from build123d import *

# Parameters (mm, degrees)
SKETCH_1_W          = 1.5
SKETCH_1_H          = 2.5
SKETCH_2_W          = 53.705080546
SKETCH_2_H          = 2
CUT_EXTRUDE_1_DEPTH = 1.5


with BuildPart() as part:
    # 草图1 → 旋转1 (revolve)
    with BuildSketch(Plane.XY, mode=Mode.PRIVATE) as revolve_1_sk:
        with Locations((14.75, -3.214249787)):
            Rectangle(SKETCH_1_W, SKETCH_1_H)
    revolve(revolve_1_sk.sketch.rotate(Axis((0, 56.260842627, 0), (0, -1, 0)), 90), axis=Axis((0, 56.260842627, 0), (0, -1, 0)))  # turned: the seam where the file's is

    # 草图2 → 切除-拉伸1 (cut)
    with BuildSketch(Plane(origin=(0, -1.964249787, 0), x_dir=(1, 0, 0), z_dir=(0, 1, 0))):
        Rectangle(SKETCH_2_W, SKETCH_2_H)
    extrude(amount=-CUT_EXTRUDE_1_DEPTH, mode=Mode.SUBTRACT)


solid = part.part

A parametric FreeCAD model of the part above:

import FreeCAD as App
import Part
import Sketcher
Q = App.Units.Quantity


def add_polygon(sketch, points):
    """Adds a closed chain of lines whose ends are joined by coincident constraints."""
    first, n = sketch.GeometryCount, len(points)
    for a, b in zip(points, points[1:] + points[:1]):
        sketch.addGeometry(Part.LineSegment(App.Vector(*a, 0), App.Vector(*b, 0)), False)
    for i in range(n):
        sketch.addConstraint(Sketcher.Constraint("Coincident", first + i, 2, first + (i + 1) % n, 1))

doc = App.newDocument("Part")
body = doc.addObject("PartDesign::Body", "Body")

sketch1 = body.newObject("Sketcher::SketchObject", "Sketch")
sketch1.AttachmentSupport = (doc.getObject("XY_Plane"), [""])
sketch1.MapMode = "FlatFace"
add_polygon(sketch1, [(14, -1.96425), (14, -4.46425), (15.5, -4.46425), (15.5, -1.96425)])
sketch1.addConstraint([
    Sketcher.Constraint("Vertical", 0),
    Sketcher.Constraint("Horizontal", 1),
    Sketcher.Constraint("Vertical", 2),
    Sketcher.Constraint("Horizontal", 3),
    Sketcher.Constraint("DistanceX", 1, 1, 1, 2, Q("1.5 mm")),
    Sketcher.Constraint("DistanceY", 0, 2, 0, 1, Q("2.5 mm")),
    Sketcher.Constraint("DistanceX", -1, 1, 0, 2, Q("14 mm")),
    Sketcher.Constraint("DistanceY", 0, 2, -1, 1, Q("4.46425 mm")),
])
revolution = body.newObject("PartDesign::Revolution", "Revolution")
revolution.Profile = sketch1
revolution.ReferenceAxis = (sketch1, ["V_Axis"])
revolution.Angle = 360

sketch2 = body.newObject("Sketcher::SketchObject", "Sketch001")
sketch2.AttachmentSupport = (doc.getObject("XZ_Plane"), [""])
sketch2.MapMode = "FlatFace"
sketch2.AttachmentOffset = App.Placement(App.Vector(0, 0, 1.96425), App.Rotation())
add_polygon(sketch2, [(-26.85254, -1), (-26.85254, 1), (26.85254, 1), (26.85254, -1)])
sketch2.addConstraint([
    Sketcher.Constraint("Vertical", 0),
    Sketcher.Constraint("Horizontal", 1),
    Sketcher.Constraint("Vertical", 2),
    Sketcher.Constraint("Horizontal", 3),
    Sketcher.Constraint("Symmetric", 0, 2, 2, 2, -1, 1),
    Sketcher.Constraint("DistanceY", 0, 1, 0, 2, Q("2 mm")),
    Sketcher.Constraint("DistanceX", 1, 1, 1, 2, Q("53.705081 mm")),
])
pocket1 = body.newObject("PartDesign::Pocket", "Pocket")
pocket1.Profile = sketch2
pocket1.Length = 1.5
pocket1.Reversed = True

doc.recompute()
